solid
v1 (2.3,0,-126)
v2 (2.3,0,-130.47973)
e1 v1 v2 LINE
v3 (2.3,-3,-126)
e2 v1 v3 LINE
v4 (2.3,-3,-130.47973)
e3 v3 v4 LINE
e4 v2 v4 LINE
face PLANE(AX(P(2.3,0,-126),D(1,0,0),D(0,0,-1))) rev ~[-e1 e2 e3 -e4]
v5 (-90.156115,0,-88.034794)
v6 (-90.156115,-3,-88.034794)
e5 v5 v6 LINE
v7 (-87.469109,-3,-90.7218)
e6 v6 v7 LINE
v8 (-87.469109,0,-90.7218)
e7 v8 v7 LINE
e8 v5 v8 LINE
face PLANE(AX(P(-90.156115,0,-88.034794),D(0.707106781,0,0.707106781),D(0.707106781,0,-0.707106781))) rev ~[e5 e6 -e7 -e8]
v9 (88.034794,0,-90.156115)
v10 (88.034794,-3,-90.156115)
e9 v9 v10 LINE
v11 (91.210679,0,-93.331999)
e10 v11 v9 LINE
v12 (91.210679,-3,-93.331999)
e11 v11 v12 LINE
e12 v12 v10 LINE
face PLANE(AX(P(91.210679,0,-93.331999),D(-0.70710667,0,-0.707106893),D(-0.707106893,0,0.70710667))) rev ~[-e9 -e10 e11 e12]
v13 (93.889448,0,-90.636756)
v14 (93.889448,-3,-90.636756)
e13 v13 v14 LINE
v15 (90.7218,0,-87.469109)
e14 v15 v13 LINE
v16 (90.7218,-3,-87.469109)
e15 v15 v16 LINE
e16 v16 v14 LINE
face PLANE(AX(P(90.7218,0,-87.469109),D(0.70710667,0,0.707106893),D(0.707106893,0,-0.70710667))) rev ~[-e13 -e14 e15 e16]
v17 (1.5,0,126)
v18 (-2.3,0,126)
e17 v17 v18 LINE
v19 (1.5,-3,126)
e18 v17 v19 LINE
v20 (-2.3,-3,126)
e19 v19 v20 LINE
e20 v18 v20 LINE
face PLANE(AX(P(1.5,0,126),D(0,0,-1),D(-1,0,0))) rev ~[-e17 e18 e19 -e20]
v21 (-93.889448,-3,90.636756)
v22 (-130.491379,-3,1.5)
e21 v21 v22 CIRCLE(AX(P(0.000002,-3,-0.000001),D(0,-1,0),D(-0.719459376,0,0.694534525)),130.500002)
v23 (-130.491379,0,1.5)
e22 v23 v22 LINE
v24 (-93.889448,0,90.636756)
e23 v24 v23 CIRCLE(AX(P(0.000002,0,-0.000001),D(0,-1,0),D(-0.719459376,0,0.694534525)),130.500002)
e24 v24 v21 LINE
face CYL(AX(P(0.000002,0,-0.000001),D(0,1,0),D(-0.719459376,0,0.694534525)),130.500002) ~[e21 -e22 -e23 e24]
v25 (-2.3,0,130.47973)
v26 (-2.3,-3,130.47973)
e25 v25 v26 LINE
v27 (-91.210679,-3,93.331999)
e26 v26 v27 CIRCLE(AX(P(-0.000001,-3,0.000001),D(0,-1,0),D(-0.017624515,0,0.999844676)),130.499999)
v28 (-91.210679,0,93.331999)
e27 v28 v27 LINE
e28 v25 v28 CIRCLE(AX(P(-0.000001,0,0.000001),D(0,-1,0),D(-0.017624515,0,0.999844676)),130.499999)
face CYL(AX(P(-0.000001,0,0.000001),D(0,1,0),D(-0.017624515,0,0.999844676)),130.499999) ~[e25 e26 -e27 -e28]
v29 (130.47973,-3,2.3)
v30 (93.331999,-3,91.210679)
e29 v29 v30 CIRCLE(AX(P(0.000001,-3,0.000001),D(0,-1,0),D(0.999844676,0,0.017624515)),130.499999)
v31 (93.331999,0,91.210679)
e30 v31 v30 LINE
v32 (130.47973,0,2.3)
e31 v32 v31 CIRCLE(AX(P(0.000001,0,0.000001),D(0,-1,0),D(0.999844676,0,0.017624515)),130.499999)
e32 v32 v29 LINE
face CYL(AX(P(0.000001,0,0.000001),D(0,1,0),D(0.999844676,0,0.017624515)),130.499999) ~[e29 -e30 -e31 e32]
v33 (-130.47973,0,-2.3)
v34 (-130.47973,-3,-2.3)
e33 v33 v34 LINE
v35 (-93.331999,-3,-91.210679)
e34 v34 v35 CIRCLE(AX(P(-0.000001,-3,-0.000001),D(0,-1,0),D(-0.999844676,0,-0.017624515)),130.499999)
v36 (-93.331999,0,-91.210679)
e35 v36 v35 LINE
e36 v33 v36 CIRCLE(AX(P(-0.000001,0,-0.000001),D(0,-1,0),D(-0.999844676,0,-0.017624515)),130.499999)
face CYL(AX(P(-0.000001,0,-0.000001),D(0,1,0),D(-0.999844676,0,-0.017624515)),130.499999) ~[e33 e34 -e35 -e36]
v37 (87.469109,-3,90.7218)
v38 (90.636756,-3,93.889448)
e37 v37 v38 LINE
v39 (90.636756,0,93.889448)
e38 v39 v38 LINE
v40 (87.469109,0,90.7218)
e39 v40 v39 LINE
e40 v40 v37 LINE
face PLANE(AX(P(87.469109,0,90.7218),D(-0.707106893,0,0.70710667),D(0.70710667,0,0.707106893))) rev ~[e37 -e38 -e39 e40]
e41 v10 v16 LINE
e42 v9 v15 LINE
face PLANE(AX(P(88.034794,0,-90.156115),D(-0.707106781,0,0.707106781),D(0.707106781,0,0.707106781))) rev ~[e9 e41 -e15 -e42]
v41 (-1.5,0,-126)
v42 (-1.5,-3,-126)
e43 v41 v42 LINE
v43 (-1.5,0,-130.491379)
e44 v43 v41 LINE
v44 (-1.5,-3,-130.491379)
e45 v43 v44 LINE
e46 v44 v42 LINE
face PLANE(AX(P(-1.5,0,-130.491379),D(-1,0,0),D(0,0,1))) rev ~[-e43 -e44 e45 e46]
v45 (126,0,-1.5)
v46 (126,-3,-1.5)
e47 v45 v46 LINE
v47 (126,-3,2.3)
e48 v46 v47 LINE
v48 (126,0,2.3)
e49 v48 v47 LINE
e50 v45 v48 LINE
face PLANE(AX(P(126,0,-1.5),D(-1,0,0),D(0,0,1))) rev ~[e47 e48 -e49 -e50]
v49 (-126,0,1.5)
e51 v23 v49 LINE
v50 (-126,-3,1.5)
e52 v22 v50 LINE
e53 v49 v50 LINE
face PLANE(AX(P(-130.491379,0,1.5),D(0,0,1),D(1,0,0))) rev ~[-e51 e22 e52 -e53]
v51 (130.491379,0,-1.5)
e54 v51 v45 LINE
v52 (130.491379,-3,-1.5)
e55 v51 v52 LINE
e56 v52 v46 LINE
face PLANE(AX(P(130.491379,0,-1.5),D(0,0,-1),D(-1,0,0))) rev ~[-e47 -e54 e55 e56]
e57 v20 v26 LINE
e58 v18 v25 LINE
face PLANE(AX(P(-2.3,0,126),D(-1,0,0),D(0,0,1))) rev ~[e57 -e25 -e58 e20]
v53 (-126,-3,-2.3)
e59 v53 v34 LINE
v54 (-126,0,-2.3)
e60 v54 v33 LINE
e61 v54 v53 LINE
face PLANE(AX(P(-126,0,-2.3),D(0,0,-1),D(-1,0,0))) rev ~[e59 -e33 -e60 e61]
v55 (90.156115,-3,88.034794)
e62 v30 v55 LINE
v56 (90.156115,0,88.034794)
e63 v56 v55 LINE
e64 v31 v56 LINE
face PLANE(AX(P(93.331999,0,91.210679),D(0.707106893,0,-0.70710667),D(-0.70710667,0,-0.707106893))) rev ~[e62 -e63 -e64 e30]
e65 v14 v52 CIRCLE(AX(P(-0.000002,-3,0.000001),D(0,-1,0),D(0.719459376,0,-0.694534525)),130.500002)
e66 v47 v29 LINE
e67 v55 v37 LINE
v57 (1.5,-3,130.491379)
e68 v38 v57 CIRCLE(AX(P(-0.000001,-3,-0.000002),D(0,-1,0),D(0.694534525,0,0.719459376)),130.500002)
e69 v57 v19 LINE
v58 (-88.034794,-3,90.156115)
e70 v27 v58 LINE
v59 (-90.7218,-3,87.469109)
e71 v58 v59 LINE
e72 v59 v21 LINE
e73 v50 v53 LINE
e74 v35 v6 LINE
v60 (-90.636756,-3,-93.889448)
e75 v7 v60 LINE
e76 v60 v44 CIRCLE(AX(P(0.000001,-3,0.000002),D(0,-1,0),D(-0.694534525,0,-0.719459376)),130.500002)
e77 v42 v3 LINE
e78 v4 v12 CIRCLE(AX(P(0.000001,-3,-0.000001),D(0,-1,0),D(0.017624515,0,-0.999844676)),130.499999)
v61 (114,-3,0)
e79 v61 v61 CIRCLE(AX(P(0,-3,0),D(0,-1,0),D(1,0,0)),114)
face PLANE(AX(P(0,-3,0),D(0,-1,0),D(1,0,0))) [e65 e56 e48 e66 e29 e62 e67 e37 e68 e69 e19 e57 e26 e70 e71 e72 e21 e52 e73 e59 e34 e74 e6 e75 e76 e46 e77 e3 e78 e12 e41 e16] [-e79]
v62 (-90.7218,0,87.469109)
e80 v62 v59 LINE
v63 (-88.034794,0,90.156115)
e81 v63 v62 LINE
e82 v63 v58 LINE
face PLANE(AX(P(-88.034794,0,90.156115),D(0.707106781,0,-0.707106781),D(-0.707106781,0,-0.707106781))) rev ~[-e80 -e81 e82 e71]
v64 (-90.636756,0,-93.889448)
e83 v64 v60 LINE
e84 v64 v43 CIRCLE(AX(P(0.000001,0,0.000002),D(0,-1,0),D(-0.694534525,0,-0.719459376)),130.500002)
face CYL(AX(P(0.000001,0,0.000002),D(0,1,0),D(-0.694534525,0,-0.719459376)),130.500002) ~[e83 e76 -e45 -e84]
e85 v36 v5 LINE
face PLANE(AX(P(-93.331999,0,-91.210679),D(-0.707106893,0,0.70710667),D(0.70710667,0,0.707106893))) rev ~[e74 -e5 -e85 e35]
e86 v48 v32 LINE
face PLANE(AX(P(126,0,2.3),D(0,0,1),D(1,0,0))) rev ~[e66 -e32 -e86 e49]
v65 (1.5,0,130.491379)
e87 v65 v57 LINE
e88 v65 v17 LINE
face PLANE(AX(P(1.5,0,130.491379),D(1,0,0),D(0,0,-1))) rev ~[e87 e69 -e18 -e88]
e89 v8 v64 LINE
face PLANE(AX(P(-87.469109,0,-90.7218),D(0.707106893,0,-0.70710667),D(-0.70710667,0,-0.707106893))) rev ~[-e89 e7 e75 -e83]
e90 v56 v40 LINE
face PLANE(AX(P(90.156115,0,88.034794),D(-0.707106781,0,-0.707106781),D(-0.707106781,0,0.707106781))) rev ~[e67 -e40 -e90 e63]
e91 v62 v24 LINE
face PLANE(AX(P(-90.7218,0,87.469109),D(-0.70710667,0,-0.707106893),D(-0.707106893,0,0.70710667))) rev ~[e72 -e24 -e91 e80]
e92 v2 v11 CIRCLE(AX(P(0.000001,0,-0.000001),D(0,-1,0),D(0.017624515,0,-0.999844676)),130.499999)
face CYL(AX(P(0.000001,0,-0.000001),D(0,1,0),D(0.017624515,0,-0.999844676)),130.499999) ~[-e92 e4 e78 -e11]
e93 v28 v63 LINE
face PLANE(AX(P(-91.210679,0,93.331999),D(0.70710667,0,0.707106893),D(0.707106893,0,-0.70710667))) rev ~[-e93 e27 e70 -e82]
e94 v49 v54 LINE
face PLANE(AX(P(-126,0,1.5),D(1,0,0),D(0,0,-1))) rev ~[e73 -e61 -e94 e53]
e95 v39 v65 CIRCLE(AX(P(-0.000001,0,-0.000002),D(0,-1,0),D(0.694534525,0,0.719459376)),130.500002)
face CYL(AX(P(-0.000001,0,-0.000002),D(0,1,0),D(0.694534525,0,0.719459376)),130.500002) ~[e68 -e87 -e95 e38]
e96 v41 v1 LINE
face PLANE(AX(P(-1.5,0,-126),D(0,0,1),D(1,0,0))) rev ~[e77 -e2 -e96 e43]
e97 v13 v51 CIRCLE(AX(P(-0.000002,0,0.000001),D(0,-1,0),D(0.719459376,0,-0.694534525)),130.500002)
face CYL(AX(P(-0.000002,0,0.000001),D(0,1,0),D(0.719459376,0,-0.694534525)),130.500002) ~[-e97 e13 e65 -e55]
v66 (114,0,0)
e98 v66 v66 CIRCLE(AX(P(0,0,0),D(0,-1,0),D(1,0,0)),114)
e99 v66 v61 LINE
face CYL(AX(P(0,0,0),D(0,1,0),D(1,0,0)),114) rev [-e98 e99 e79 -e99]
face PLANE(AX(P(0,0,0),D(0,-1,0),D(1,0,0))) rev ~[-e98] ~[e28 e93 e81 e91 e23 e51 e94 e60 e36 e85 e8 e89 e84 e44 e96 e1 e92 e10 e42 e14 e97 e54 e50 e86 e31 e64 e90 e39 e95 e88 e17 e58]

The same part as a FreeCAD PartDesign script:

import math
import FreeCAD as App
import Part
import Sketcher

V = App.Vector
Q = App.Units.Quantity

doc = App.newDocument("Part")
params = doc.addObject("Spreadsheet::Sheet", "Params")
for row, (alias, value) in enumerate([
    ("sketch1_diameter", "228 mm"),
    ("sketch1_radius", "130.499999 mm"),
    ("sketch1_width", "3.8 mm"),
    ("sketch1_length", "3.8 mm"),
    ("pad1_length", "3 mm"),
], start=1):
    params.set(f"A{row}", alias)
    params.set(f"B{row}", "=" + value)
    params.setAlias(f"B{row}", alias)

body = doc.addObject("PartDesign::Body", "Body")

# Sketch on XZ plane
sketch1 = body.newObject("Sketcher::SketchObject", "Sketch")
sketch1.AttachmentSupport = (doc.getObject("XZ_Plane"), [""])
sketch1.MapMode = "FlatFace"
sketch1.addGeometry([
    Part.LineSegment(V(126, 2.3, 0), V(130.47973, 2.3, 0)),  # 0
    Part.ArcOfCircle(Part.Circle(V(0.000001, 0.000001, 0), V(0, 0, 1), 130.499999), math.radians(1.009863), math.radians(44.341414)),  # 1
    Part.LineSegment(V(93.331999, 91.210679, 0), V(90.156115, 88.034794, 0)),  # 2
    Part.LineSegment(V(90.156115, 88.034794, 0), V(87.469109, 90.7218, 0)),  # 3
    Part.LineSegment(V(87.469109, 90.7218, 0), V(90.636756, 93.889448, 0)),  # 4
    Part.ArcOfCircle(Part.Circle(V(-0.000001, -0.000002, 0), V(0, 0, 1), 130.500002), math.radians(46.009864), math.radians(89.341413)),  # 5
    Part.LineSegment(V(1.5, 130.491379, 0), V(1.5, 126, 0)),  # 6
    Part.LineSegment(V(1.5, 126, 0), V(-2.3, 126, 0)),  # 7
    Part.LineSegment(V(-2.3, 126, 0), V(-2.3, 130.47973, 0)),  # 8
    Part.ArcOfCircle(Part.Circle(V(-0.000001, 0.000001, 0), V(0, 0, 1), 130.499999), math.radians(91.009863), math.radians(134.341414)),  # 9
    Part.LineSegment(V(-91.210679, 93.331999, 0), V(-88.034794, 90.156115, 0)),  # 10
    Part.LineSegment(V(-88.034794, 90.156115, 0), V(-90.7218, 87.469109, 0)),  # 11
    Part.LineSegment(V(-90.7218, 87.469109, 0), V(-93.889448, 90.636756, 0)),  # 12
    Part.ArcOfCircle(Part.Circle(V(0.000002, -0.000001, 0), V(0, 0, 1), 130.500002), math.radians(136.009864), math.radians(179.341413)),  # 13
    Part.LineSegment(V(-130.491379, 1.5, 0), V(-126, 1.5, 0)),  # 14
    Part.LineSegment(V(-126, 1.5, 0), V(-126, -2.3, 0)),  # 15
    Part.LineSegment(V(-126, -2.3, 0), V(-130.47973, -2.3, 0)),  # 16
    Part.ArcOfCircle(Part.Circle(V(-0.000001, -0.000001, 0), V(0, 0, 1), 130.499999), math.radians(-178.990137), math.radians(-135.658586)),  # 17
    Part.LineSegment(V(-93.331999, -91.210679, 0), V(-90.156115, -88.034794, 0)),  # 18
    Part.LineSegment(V(-90.156115, -88.034794, 0), V(-87.469109, -90.7218, 0)),  # 19
    Part.LineSegment(V(-87.469109, -90.7218, 0), V(-90.636756, -93.889448, 0)),  # 20
    Part.ArcOfCircle(Part.Circle(V(0.000001, 0.000002, 0), V(0, 0, 1), 130.500002), math.radians(-133.990136), math.radians(-90.658587)),  # 21
    Part.LineSegment(V(-1.5, -130.491379, 0), V(-1.5, -126, 0)),  # 22
    Part.LineSegment(V(-1.5, -126, 0), V(2.3, -126, 0)),  # 23
    Part.LineSegment(V(2.3, -126, 0), V(2.3, -130.47973, 0)),  # 24
    Part.ArcOfCircle(Part.Circle(V(0.000001, -0.000001, 0), V(0, 0, 1), 130.499999), math.radians(-88.990137), math.radians(-45.658586)),  # 25
    Part.LineSegment(V(91.210679, -93.331999, 0), V(88.034794, -90.156115, 0)),  # 26
    Part.LineSegment(V(88.034794, -90.156115, 0), V(90.7218, -87.469109, 0)),  # 27
    Part.LineSegment(V(90.7218, -87.469109, 0), V(93.889448, -90.636756, 0)),  # 28
    Part.ArcOfCircle(Part.Circle(V(-0.000002, 0.000001, 0), V(0, 0, 1), 130.500002), math.radians(-43.990136), math.radians(-0.658587)),  # 29
    Part.LineSegment(V(130.491379, -1.5, 0), V(126, -1.5, 0)),  # 30
    Part.LineSegment(V(126, -1.5, 0), V(126, 2.3, 0)),  # 31
    Part.Circle(V(0, 0, 0), V(0, 0, 1), 114),  # 32
], False)
sketch1.addConstraint([
    Sketcher.Constraint("Coincident", 0, 2, 1, 1),
    Sketcher.Constraint("Coincident", 1, 2, 2, 1),
    Sketcher.Constraint("Coincident", 2, 2, 3, 1),
    Sketcher.Constraint("Coincident", 3, 2, 4, 1),
    Sketcher.Constraint("Coincident", 4, 2, 5, 1),
    Sketcher.Constraint("Coincident", 5, 2, 6, 1),
    Sketcher.Constraint("Coincident", 6, 2, 7, 1),
    Sketcher.Constraint("Coincident", 7, 2, 8, 1),
    Sketcher.Constraint("Coincident", 8, 2, 9, 1),
    Sketcher.Constraint("Coincident", 9, 2, 10, 1),
    Sketcher.Constraint("Coincident", 10, 2, 11, 1),
    Sketcher.Constraint("Coincident", 11, 2, 12, 1),
    Sketcher.Constraint("Coincident", 12, 2, 13, 1),
    Sketcher.Constraint("Coincident", 13, 2, 14, 1),
    Sketcher.Constraint("Coincident", 14, 2, 15, 1),
    Sketcher.Constraint("Coincident", 15, 2, 16, 1),
    Sketcher.Constraint("Coincident", 16, 2, 17, 1),
    Sketcher.Constraint("Coincident", 17, 2, 18, 1),
    Sketcher.Constraint("Coincident", 18, 2, 19, 1),
    Sketcher.Constraint("Coincident", 19, 2, 20, 1),
    Sketcher.Constraint("Coincident", 20, 2, 21, 1),
    Sketcher.Constraint("Coincident", 21, 2, 22, 1),
    Sketcher.Constraint("Coincident", 22, 2, 23, 1),
    Sketcher.Constraint("Coincident", 23, 2, 24, 1),
    Sketcher.Constraint("Coincident", 24, 2, 25, 1),
    Sketcher.Constraint("Coincident", 25, 2, 26, 1),
    Sketcher.Constraint("Coincident", 26, 2, 27, 1),
    Sketcher.Constraint("Coincident", 27, 2, 28, 1),
    Sketcher.Constraint("Coincident", 28, 2, 29, 1),
    Sketcher.Constraint("Coincident", 29, 2, 30, 1),
    Sketcher.Constraint("Coincident", 30, 2, 31, 1),
    Sketcher.Constraint("Coincident", 31, 2, 0, 1),
    Sketcher.Constraint("Horizontal", 0),
    Sketcher.Constraint("Vertical", 6),
    Sketcher.Constraint("Horizontal", 7),
    Sketcher.Constraint("Vertical", 8),
    Sketcher.Constraint("Horizontal", 14),
    Sketcher.Constraint("Vertical", 15),
    Sketcher.Constraint("Horizontal", 16),
    Sketcher.Constraint("Vertical", 22),
    Sketcher.Constraint("Horizontal", 23),
    Sketcher.Constraint("Vertical", 24),
    Sketcher.Constraint("Horizontal", 30),
    Sketcher.Constraint("Vertical", 31),
    Sketcher.Constraint("Coincident", 1, 3, -1, 1),
    Sketcher.Constraint("Coincident", 5, 3, -1, 1),
    Sketcher.Constraint("Coincident", 9, 3, -1, 1),
    Sketcher.Constraint("Coincident", 13, 3, -1, 1),
    Sketcher.Constraint("Coincident", 17, 3, -1, 1),
    Sketcher.Constraint("Coincident", 21, 3, -1, 1),
    Sketcher.Constraint("Coincident", 25, 3, -1, 1),
    Sketcher.Constraint("Coincident", 29, 3, -1, 1),
    Sketcher.Constraint("Coincident", 32, 3, -1, 1),
    Sketcher.Constraint("Equal", 1, 9),
    Sketcher.Constraint("Equal", 5, 13),
    Sketcher.Constraint("Equal", 9, 17),
    Sketcher.Constraint("Equal", 13, 21),
    Sketcher.Constraint("Equal", 17, 25),
    Sketcher.Constraint("Equal", 21, 29),
    Sketcher.Constraint("Symmetric", 2, 2, 18, 2, -1, 1),
    Sketcher.Constraint("Symmetric", 3, 2, 19, 2, -1, 1),
    Sketcher.Constraint("Symmetric", 6, 2, 22, 2, -1, 1),
    Sketcher.Constraint("Symmetric", 10, 2, 26, 2, -1, 1),
    Sketcher.Constraint("Symmetric", 11, 2, 27, 2, -1, 1),
    Sketcher.Constraint("Symmetric", 14, 2, 30, 2, -1, 1),
    Sketcher.Constraint("Perpendicular", 2, 3),
    Sketcher.Constraint("Perpendicular", 3, 4),
    Sketcher.Constraint("Perpendicular", 4, 10),
    Sketcher.Constraint("Perpendicular", 10, 11),
    Sketcher.Constraint("Perpendicular", 11, 12),
    Sketcher.Constraint("Perpendicular", 12, 18),
    Sketcher.Constraint("Perpendicular", 19, 20),
    Sketcher.Constraint("Perpendicular", 20, 26),
    Sketcher.Constraint("Perpendicular", 27, 28),
    Sketcher.Constraint("Equal", 0, 16),
    Sketcher.Constraint("Equal", 7, 23),
    Sketcher.Constraint("Equal", 30, 6),
    Sketcher.Constraint("Equal", 16, 8),
    Sketcher.Constraint("Equal", 23, 15),
    Sketcher.Constraint("Equal", 2, 10),
    Sketcher.Constraint("Equal", 3, 11),
    Sketcher.Constraint("Equal", 4, 12),
    Sketcher.Constraint("Diameter", 32, Q("228 mm")),
    Sketcher.Constraint("Radius", 1, Q("130.499999 mm")),
    Sketcher.Constraint("Angle", 2, Q("-134.999991 deg")),
    Sketcher.Constraint("DistanceX", 7, 2, 7, 1, Q("3.8 mm")),
    Sketcher.Constraint("DistanceY", -1, 1, 6, 2, Q("126 mm")),
    Sketcher.Constraint("Distance", 3, Q("3.8 mm")),
    Sketcher.Constraint("DistanceY", -1, 1, 0, 2, Q("2.3 mm")),
    Sketcher.Constraint("Radius", 5, Q("130.500002 mm")),
    Sketcher.Constraint("DistanceY", -1, 1, 3, 2, Q("90.7218 mm")),
    Sketcher.Constraint("Distance", 2, Q("4.491379 mm")),
])
sketch1.setExpression("Constraints[82]", "Params.sketch1_diameter")
sketch1.setExpression("Constraints[83]", "Params.sketch1_radius")
sketch1.setExpression("Constraints[85]", "Params.sketch1_width")
sketch1.setExpression("Constraints[87]", "Params.sketch1_length")
pad1 = body.newObject("PartDesign::Pad", "Pad")
pad1.Profile = sketch1
pad1.setExpression("Length", "Params.pad1_length")

doc.recompute()
